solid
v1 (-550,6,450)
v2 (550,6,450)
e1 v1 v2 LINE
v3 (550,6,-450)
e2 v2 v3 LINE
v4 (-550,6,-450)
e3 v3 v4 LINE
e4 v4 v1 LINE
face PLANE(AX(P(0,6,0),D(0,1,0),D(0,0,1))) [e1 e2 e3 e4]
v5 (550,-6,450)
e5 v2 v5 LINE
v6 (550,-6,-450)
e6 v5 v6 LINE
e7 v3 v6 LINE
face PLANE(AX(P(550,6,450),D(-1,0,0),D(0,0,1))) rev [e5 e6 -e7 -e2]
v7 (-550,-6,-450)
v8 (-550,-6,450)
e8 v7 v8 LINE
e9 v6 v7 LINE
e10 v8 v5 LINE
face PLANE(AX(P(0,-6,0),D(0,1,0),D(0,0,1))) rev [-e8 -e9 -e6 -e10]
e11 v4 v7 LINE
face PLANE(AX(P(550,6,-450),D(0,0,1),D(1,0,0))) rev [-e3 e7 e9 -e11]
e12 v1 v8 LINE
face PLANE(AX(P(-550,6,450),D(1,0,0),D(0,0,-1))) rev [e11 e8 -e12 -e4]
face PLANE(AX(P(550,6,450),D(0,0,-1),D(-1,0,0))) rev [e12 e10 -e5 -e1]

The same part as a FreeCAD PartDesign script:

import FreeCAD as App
import Part
import Sketcher

V = App.Vector
Q = App.Units.Quantity

doc = App.newDocument("Part")
params = doc.addObject("Spreadsheet::Sheet", "Params")
for row, (alias, value) in enumerate([
    ("sketch1_width", "1100 mm"),
    ("sketch1_height", "900 mm"),
    ("pad1_length", "12 mm"),
], start=1):
    params.set(f"A{row}", alias)
    params.set(f"B{row}", "=" + value)
    params.setAlias(f"B{row}", alias)

body = doc.addObject("PartDesign::Body", "Body")

# Sketch on XZ plane
sketch1 = body.newObject("Sketcher::SketchObject", "Sketch")
sketch1.AttachmentSupport = (doc.getObject("XZ_Plane"), [""])
sketch1.MapMode = "FlatFace"
sketch1.addGeometry([
    Part.LineSegment(V(-550, -450, 0), V(-550, 450, 0)),
    Part.LineSegment(V(-550, 450, 0), V(550, 450, 0)),
    Part.LineSegment(V(550, 450, 0), V(550, -450, 0)),
    Part.LineSegment(V(550, -450, 0), V(-550, -450, 0)),
], False)
sketch1.addConstraint([
    Sketcher.Constraint("Coincident", 0, 2, 1, 1),
    Sketcher.Constraint("Coincident", 1, 2, 2, 1),
    Sketcher.Constraint("Coincident", 2, 2, 3, 1),
    Sketcher.Constraint("Coincident", 3, 2, 0, 1),
    Sketcher.Constraint("Vertical", 0),
    Sketcher.Constraint("Horizontal", 1),
    Sketcher.Constraint("Vertical", 2),
    Sketcher.Constraint("Horizontal", 3),
    Sketcher.Constraint("Symmetric", 0, 2, 2, 2, -1, 1),
    Sketcher.Constraint("DistanceX", 1, 1, 1, 2, Q("1100 mm")),
    Sketcher.Constraint("DistanceY", 0, 1, 0, 2, Q("900 mm")),
])
sketch1.setExpression("Constraints[9]", "Params.sketch1_width")
sketch1.setExpression("Constraints[10]", "Params.sketch1_height")
pad1 = body.newObject("PartDesign::Pad", "Pad")
pad1.Profile = sketch1
pad1.setExpression("Length", "Params.pad1_length")
pad1.Midplane = True

doc.recompute()
